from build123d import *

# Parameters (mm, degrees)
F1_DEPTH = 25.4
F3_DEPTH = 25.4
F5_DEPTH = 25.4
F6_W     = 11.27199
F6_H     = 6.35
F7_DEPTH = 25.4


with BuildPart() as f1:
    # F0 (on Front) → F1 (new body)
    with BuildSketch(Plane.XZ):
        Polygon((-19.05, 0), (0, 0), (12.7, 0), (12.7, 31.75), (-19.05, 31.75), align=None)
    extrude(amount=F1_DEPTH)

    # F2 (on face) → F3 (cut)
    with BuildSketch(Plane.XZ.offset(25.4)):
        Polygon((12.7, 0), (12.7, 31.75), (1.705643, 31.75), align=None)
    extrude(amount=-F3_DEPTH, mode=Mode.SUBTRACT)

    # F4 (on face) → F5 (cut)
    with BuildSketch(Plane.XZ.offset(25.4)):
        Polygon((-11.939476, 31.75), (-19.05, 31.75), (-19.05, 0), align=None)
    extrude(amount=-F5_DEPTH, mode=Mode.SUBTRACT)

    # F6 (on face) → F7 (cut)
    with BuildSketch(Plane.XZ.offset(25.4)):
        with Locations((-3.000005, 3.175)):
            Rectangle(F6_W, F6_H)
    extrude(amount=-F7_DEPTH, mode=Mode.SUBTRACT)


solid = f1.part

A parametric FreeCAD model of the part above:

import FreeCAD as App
import Part
import Sketcher

V = App.Vector
Q = App.Units.Quantity

doc = App.newDocument("Part")
body = doc.addObject("PartDesign::Body", "Body")

sketch1 = body.newObject("Sketcher::SketchObject", "Sketch")
sketch1.AttachmentSupport = (doc.getObject("XZ_Plane"), [""])
sketch1.MapMode = "FlatFace"
sketch1.addGeometry([
    Part.LineSegment(V(-19, 0, 0), V(13, 0, 0)),
    Part.LineSegment(V(13, 0, 0), V(13, 32, 0)),
    Part.LineSegment(V(13, 32, 0), V(-19, 32, 0)),
    Part.LineSegment(V(-19, 32, 0), V(-19, 0, 0)),
], False)
sketch1.addConstraint([
    Sketcher.Constraint("Coincident", 0, 2, 1, 1),
    Sketcher.Constraint("Coincident", 1, 2, 2, 1),
    Sketcher.Constraint("Coincident", 2, 2, 3, 1),
    Sketcher.Constraint("Coincident", 3, 2, 0, 1),
    Sketcher.Constraint("Horizontal", 0),
    Sketcher.Constraint("Vertical", 1),
    Sketcher.Constraint("Horizontal", 2),
    Sketcher.Constraint("Vertical", 3),
    Sketcher.Constraint("PointOnObject", 0, 2, -1),
    Sketcher.Constraint("Equal", 2, 1),
    Sketcher.Constraint("DistanceX", 0, 1, 0, 2, Q("1.25 in")),
    Sketcher.Constraint("DistanceX", -1, 1, 0, 2, Q("0.5 in")),
])
pad1 = body.newObject("PartDesign::Pad", "Pad")
pad1.Profile = sketch1
pad1.Length = Q("1 in")

sketch2 = body.newObject("Sketcher::SketchObject", "Sketch001")
sketch2.AttachmentSupport = (doc.getObject("XZ_Plane"), [""])
sketch2.MapMode = "FlatFace"
sketch2.AttachmentOffset = App.Placement(V(0, 0, 1 * 25.4), App.Rotation())
sketch2.addGeometry([
    Part.LineSegment(V(13, 0, 0), V(13, 32, 0)),
    Part.LineSegment(V(13, 32, 0), V(2, 32, 0)),
    Part.LineSegment(V(2, 32, 0), V(13, 0, 0)),
], False)
sketch2.addConstraint([
    Sketcher.Constraint("Coincident", 0, 2, 1, 1),
    Sketcher.Constraint("Coincident", 1, 2, 2, 1),
    Sketcher.Constraint("Coincident", 2, 2, 0, 1),
    Sketcher.Constraint("Vertical", 0),
    Sketcher.Constraint("Horizontal", 1),
    Sketcher.Constraint("PointOnObject", 2, 2, -1),
    Sketcher.Constraint("DistanceY", 0, 1, 0, 2, Q("1.25 in")),
    Sketcher.Constraint("DistanceX", -1, 1, 0, 2, Q("0.5 in")),
    Sketcher.Constraint("Distance", 2, 33.599678),
])
pocket1 = body.newObject("PartDesign::Pocket", "Pocket")
pocket1.Profile = sketch2
pocket1.Length = Q("1 in")

sketch3 = body.newObject("Sketcher::SketchObject", "Sketch002")
sketch3.AttachmentSupport = (doc.getObject("XZ_Plane"), [""])
sketch3.MapMode = "FlatFace"
sketch3.AttachmentOffset = App.Placement(V(0, 0, 1 * 25.4), App.Rotation())
sketch3.addGeometry([
    Part.LineSegment(V(-12, 32, 0), V(-19, 32, 0)),
    Part.LineSegment(V(-19, 32, 0), V(-19, 0, 0)),
    Part.LineSegment(V(-19, 0, 0), V(-12, 32, 0)),
], False)
sketch3.addConstraint([
    Sketcher.Constraint("Coincident", 0, 2, 1, 1),
    Sketcher.Constraint("Coincident", 1, 2, 2, 1),
    Sketcher.Constraint("Coincident", 2, 2, 0, 1),
    Sketcher.Constraint("Horizontal", 0),
    Sketcher.Constraint("Vertical", 1),
    Sketcher.Constraint("PointOnObject", 1, 2, -1),
    Sketcher.Constraint("DistanceY", 1, 2, 1, 1, Q("1.25 in")),
    Sketcher.Constraint("DistanceX", 0, 2, -1, 1, Q("0.75 in")),
    Sketcher.Constraint("DistanceX", 0, 2, 0, 1, 7.110524),
])
pocket2 = body.newObject("PartDesign::Pocket", "Pocket001")
pocket2.Profile = sketch3
pocket2.Length = Q("1 in")

sketch4 = body.newObject("Sketcher::SketchObject", "Sketch003")
sketch4.AttachmentSupport = (doc.getObject("XZ_Plane"), [""])
sketch4.MapMode = "FlatFace"
sketch4.AttachmentOffset = App.Placement(V(0, 0, 1 * 25.4), App.Rotation())
sketch4.addGeometry([
    Part.LineSegment(V(-9, 6, 0), V(-9, 0, 0)),
    Part.LineSegment(V(-9, 0, 0), V(3, 0, 0)),
    Part.LineSegment(V(3, 0, 0), V(3, 6, 0)),
    Part.LineSegment(V(3, 6, 0), V(-9, 6, 0)),
], False)
sketch4.addConstraint([
    Sketcher.Constraint("Coincident", 0, 2, 1, 1),
    Sketcher.Constraint("Coincident", 1, 2, 2, 1),
    Sketcher.Constraint("Coincident", 2, 2, 3, 1),
    Sketcher.Constraint("Coincident", 3, 2, 0, 1),
    Sketcher.Constraint("Vertical", 0),
    Sketcher.Constraint("Horizontal", 1),
    Sketcher.Constraint("Vertical", 2),
    Sketcher.Constraint("Horizontal", 3),
    Sketcher.Constraint("PointOnObject", 0, 2, -1),
    Sketcher.Constraint("DistanceY", 0, 2, 0, 1, Q("0.25 in")),
    Sketcher.Constraint("DistanceX", 0, 2, -1, 1, Q("0.34 in")),
    Sketcher.Constraint("DistanceX", 1, 1, 1, 2, 11.27199),
])
pocket3 = body.newObject("PartDesign::Pocket", "Pocket002")
pocket3.Profile = sketch4
pocket3.Length = Q("1 in")

doc.recompute()
